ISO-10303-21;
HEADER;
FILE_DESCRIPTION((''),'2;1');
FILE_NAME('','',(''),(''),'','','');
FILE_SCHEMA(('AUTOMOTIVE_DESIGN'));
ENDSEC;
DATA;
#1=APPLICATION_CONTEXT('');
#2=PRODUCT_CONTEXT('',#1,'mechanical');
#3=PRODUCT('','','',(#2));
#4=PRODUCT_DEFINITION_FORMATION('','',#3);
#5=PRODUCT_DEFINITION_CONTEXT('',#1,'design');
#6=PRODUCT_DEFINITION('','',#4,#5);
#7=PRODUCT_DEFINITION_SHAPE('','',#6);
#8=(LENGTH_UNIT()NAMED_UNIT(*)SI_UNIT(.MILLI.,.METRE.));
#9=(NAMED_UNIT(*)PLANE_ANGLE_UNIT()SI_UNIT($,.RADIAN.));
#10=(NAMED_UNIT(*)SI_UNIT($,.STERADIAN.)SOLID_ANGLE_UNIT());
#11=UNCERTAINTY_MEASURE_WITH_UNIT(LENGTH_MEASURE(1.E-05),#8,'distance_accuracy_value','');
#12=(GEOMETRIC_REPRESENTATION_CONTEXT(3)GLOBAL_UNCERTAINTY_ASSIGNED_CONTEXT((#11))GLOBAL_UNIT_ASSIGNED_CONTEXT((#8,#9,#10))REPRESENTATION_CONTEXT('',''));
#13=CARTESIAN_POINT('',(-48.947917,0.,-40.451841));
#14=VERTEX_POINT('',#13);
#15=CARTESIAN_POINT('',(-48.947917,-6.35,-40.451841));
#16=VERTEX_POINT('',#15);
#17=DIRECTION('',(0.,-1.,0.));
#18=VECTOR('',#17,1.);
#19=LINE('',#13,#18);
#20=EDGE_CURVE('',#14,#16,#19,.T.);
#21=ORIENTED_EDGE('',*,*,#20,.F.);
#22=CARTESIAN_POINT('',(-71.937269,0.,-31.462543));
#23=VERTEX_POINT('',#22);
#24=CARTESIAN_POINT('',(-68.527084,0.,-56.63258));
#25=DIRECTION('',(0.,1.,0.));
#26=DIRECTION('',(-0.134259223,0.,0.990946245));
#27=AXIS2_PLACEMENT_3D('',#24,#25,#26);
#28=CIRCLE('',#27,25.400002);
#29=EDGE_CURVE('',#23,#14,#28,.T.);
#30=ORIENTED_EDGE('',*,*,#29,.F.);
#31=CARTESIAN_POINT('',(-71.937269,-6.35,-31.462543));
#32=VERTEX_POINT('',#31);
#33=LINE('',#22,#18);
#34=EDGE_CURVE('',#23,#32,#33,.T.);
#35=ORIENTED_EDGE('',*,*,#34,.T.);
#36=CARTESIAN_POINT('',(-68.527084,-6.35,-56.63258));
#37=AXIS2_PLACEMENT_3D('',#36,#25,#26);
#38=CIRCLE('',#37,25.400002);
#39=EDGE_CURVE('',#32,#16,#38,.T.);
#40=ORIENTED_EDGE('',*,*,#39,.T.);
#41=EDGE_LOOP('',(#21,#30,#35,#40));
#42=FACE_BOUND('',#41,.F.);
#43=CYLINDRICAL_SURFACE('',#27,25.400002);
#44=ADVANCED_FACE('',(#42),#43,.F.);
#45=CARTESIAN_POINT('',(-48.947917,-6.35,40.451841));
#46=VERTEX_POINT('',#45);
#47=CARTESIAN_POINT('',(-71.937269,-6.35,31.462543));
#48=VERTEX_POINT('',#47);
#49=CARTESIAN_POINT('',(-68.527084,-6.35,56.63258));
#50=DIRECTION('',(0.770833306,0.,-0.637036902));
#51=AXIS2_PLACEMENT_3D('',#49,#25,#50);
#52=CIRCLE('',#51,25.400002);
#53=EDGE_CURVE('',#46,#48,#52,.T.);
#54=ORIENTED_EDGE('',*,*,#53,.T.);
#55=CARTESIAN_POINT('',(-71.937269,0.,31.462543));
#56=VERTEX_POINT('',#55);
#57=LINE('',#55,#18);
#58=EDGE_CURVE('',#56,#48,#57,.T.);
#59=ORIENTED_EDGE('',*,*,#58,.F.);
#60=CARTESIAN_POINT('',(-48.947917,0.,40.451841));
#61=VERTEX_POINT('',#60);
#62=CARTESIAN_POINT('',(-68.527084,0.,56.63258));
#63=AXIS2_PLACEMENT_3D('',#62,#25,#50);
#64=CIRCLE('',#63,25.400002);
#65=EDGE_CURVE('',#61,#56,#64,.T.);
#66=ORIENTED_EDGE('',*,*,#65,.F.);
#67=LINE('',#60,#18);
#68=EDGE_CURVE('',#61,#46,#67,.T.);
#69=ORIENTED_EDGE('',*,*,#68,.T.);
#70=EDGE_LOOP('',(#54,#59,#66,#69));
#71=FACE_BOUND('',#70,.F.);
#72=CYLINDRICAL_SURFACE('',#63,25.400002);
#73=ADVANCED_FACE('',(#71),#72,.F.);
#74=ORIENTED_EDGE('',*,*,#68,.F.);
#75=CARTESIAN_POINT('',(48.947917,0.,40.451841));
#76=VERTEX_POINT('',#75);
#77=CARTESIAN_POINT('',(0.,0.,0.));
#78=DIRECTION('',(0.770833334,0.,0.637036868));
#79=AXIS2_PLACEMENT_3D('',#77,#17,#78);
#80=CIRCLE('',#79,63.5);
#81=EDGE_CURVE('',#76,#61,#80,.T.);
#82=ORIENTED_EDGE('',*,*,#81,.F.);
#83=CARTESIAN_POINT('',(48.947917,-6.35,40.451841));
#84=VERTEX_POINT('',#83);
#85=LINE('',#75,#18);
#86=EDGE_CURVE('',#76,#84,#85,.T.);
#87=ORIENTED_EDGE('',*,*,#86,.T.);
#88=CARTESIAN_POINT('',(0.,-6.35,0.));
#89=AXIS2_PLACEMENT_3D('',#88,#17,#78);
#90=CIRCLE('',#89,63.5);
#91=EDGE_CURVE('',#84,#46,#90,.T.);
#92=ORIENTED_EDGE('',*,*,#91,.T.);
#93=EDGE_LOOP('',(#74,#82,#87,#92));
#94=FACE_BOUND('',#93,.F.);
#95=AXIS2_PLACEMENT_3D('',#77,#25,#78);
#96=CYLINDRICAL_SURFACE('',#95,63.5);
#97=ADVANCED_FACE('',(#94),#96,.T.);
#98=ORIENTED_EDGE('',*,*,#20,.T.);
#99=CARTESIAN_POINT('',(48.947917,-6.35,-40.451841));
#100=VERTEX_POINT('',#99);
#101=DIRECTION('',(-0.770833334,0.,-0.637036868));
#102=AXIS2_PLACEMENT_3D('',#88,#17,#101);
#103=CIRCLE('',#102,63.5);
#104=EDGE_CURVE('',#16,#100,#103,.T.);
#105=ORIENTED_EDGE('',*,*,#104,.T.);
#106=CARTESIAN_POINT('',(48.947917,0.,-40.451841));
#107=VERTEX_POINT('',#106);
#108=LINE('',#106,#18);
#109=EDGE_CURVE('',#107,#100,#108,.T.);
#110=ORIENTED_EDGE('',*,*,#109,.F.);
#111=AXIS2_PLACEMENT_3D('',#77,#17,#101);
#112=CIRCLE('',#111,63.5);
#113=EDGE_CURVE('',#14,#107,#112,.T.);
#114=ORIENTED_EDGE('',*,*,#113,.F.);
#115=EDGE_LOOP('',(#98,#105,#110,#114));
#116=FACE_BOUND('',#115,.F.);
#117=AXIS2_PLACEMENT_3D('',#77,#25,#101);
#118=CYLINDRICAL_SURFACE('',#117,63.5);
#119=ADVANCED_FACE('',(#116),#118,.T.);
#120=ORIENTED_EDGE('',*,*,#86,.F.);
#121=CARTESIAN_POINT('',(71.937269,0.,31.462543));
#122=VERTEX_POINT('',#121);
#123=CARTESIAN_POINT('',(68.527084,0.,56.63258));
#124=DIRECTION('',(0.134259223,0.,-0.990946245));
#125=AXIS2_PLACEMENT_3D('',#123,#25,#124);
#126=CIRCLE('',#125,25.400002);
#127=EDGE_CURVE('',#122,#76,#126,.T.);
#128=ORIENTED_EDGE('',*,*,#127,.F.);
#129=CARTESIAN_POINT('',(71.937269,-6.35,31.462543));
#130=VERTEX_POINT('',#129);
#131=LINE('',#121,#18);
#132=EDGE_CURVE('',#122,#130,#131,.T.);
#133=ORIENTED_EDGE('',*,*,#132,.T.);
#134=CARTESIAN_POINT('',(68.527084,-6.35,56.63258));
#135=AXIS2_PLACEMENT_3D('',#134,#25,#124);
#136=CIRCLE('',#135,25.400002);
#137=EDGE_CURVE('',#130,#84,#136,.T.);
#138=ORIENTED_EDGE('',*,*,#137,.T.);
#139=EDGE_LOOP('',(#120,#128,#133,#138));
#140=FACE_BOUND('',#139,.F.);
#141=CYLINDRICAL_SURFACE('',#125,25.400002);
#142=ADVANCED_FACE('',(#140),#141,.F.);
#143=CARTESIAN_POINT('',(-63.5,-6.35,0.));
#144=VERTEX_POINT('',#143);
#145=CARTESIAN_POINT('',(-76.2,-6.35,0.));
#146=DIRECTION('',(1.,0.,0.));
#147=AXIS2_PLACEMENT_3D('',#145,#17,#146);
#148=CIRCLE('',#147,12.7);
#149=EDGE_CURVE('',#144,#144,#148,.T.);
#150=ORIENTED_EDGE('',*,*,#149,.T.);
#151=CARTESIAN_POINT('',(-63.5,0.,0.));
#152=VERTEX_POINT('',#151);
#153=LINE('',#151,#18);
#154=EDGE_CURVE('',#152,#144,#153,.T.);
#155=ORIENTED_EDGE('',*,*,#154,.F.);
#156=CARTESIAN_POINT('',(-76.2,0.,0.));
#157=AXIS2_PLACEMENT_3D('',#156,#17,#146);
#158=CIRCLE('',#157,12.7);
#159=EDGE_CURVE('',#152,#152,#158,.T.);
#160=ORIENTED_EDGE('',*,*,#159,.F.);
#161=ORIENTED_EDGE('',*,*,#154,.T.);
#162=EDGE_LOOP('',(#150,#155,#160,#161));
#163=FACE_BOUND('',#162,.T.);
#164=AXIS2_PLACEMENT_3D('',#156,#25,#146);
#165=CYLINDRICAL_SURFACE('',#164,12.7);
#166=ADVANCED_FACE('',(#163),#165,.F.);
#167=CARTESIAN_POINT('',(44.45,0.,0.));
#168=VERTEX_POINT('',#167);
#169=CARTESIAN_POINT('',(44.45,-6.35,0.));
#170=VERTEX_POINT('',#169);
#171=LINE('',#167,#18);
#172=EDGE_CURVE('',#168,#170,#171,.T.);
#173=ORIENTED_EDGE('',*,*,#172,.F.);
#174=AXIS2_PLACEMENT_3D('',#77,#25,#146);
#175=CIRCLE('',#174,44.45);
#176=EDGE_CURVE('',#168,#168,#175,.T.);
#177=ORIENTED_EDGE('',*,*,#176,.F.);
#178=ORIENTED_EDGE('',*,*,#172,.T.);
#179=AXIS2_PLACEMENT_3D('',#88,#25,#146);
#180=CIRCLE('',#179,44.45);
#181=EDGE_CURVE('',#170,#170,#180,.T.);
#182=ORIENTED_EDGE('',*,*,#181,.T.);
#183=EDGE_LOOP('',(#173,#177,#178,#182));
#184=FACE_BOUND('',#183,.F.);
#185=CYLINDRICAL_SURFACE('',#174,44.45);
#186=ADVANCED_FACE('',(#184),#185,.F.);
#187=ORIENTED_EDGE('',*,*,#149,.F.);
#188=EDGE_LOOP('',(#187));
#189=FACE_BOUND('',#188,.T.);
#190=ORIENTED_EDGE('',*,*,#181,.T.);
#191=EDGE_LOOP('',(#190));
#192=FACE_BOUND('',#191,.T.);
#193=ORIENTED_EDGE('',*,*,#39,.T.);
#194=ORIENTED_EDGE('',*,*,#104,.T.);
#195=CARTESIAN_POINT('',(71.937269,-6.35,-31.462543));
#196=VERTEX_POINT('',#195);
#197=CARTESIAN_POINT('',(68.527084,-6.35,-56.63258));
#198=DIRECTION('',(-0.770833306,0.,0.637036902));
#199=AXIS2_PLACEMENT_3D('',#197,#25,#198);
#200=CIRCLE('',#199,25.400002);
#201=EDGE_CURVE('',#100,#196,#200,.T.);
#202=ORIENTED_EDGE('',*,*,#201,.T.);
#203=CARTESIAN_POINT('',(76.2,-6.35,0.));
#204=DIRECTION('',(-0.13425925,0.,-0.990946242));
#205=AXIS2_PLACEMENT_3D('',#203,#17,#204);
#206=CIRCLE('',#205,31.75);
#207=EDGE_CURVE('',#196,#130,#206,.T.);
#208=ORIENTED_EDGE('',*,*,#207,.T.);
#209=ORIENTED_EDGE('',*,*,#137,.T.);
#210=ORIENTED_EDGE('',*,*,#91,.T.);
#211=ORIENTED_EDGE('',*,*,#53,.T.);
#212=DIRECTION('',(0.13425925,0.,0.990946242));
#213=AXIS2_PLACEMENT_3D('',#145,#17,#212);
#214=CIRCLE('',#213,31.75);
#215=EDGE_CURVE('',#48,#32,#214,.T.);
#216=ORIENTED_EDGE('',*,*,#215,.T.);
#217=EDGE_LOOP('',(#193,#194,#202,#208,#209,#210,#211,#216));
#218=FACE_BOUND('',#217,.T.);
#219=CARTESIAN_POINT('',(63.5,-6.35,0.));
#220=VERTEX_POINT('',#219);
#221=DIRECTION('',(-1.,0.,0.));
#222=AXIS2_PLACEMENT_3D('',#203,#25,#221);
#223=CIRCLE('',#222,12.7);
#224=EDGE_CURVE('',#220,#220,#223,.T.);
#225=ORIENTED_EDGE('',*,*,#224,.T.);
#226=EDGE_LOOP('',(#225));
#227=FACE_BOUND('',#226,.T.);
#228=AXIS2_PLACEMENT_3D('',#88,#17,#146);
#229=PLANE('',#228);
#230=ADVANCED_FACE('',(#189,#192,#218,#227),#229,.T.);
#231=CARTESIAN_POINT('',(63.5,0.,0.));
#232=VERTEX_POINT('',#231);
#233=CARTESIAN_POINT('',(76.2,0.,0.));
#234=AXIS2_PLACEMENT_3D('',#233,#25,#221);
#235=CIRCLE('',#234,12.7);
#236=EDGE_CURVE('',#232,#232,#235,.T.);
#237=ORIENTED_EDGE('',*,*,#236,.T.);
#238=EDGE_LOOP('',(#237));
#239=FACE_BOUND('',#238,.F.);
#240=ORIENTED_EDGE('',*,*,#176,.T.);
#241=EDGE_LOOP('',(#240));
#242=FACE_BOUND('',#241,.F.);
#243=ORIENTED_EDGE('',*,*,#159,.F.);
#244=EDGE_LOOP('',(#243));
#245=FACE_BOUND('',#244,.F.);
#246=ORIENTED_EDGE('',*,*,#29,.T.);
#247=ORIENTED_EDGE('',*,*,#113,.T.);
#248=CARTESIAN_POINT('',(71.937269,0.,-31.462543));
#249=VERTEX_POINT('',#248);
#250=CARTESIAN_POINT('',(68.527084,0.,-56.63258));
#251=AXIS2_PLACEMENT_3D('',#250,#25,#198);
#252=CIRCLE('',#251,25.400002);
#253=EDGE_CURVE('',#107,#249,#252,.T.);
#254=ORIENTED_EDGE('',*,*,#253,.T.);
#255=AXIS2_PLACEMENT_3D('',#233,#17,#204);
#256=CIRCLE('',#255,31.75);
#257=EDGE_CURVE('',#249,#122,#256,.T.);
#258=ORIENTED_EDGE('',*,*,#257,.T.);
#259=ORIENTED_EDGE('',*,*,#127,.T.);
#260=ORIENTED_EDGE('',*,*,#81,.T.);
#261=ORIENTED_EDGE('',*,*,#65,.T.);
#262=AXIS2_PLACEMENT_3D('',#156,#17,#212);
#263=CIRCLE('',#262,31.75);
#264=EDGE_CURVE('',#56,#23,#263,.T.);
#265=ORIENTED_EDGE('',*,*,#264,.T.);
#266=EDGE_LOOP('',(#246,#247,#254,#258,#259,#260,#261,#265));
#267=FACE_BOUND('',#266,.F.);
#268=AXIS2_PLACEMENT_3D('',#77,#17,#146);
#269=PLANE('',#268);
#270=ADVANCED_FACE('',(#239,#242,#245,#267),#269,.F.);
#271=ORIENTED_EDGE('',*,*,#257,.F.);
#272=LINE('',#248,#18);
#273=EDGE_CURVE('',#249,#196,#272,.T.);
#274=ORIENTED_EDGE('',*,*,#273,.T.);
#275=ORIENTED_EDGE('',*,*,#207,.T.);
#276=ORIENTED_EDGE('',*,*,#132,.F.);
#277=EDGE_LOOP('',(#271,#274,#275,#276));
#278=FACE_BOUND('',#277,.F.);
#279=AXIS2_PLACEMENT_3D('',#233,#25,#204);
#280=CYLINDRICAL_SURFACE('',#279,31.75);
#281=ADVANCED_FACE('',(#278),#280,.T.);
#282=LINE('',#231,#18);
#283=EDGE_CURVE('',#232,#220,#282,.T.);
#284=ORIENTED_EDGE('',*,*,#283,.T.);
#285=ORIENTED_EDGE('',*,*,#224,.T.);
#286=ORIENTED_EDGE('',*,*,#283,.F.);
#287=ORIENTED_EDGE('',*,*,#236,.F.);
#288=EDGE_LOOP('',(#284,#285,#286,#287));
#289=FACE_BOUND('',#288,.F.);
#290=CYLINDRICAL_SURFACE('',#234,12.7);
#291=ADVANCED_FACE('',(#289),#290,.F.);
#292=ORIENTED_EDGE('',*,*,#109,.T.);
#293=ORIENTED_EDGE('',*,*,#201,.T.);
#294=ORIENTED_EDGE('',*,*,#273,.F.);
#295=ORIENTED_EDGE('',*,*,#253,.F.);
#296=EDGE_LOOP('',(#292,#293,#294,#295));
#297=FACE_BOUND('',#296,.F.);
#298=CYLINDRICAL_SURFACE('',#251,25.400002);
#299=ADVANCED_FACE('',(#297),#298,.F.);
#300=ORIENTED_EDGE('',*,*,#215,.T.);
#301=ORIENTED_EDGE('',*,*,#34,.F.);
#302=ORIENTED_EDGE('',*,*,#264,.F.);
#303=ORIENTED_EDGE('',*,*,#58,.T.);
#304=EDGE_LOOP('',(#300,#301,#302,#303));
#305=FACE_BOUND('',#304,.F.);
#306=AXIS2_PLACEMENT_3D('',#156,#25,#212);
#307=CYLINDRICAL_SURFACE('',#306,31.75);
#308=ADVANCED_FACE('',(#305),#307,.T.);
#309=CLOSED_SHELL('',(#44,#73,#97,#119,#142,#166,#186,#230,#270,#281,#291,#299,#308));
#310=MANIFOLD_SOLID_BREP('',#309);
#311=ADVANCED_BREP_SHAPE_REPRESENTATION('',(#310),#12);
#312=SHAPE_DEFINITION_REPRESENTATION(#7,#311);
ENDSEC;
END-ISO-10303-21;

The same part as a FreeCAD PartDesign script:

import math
import FreeCAD as App
import Part
import Sketcher
from FreeCAD import Vector
Q = App.Units.Quantity

doc = App.newDocument("Part")
params = doc.addObject("Spreadsheet::Sheet", "Params")
for row, (alias, value) in enumerate([
    ("sketch1_diameter", "1 in"),
    ("sketch1_radius", "1.0000001 in"),
    ("sketch1_diameter2", "3.5 in"),
    ("sketch1_radius2", "2.5 in"),
    ("sketch1_radius3", "1.25 in"),
    ("pad1_length", "0.25 in"),
], start=1):
    params.set(f"A{row}", alias)
    params.set(f"B{row}", "=" + value)
    params.setAlias(f"B{row}", alias)

body = doc.addObject("PartDesign::Body", "Body")

sketch1 = body.newObject("Sketcher::SketchObject", "Sketch")
sketch1.AttachmentSupport = (doc.getObject("XZ_Plane"), [""])
sketch1.MapMode = "FlatFace"
sketch1.addGeometry(Part.ArcOfCircle(Part.Circle(Vector(-69, -57, 0), Vector(0, 0, 1), 25), math.radians(40), math.radians(98)), False)
sketch1.addGeometry(Part.ArcOfCircle(Part.Circle(Vector(0, 0, 0), Vector(0, 0, 1), 64), math.radians(-140), math.radians(-40)), False)
sketch1.addGeometry(Part.ArcOfCircle(Part.Circle(Vector(69, -57, 0), Vector(0, 0, 1), 25), math.radians(82), math.radians(140)), False)
sketch1.addGeometry(Part.ArcOfCircle(Part.Circle(Vector(76, 0, 0), Vector(0, 0, 1), 32), math.radians(-98), math.radians(98)), False)
sketch1.addGeometry(Part.ArcOfCircle(Part.Circle(Vector(69, 57, 0), Vector(0, 0, 1), 25), math.radians(-140), math.radians(-82)), False)
sketch1.addGeometry(Part.ArcOfCircle(Part.Circle(Vector(0, 0, 0), Vector(0, 0, 1), 64), math.radians(40), math.radians(140)), False)
sketch1.addGeometry(Part.ArcOfCircle(Part.Circle(Vector(-69, 57, 0), Vector(0, 0, 1), 25), math.radians(-98), math.radians(-40)), False)
sketch1.addGeometry(Part.ArcOfCircle(Part.Circle(Vector(-76, 0, 0), Vector(0, 0, 1), 32), math.radians(82), math.radians(278)), False)
sketch1.addGeometry(Part.Circle(Vector(-76, 0, 0), Vector(0, 0, 1), 13), False)
sketch1.addGeometry(Part.Circle(Vector(76, 0, 0), Vector(0, 0, 1), 13), False)
sketch1.addGeometry(Part.Circle(Vector(0, 0, 0), Vector(0, 0, 1), 44), False)
sketch1.addConstraint(Sketcher.Constraint("Tangent", 0, 1, 1, 1))
sketch1.addConstraint(Sketcher.Constraint("Tangent", 1, 2, 2, 2))
sketch1.addConstraint(Sketcher.Constraint("Tangent", 2, 1, 3, 1))
sketch1.addConstraint(Sketcher.Constraint("Tangent", 3, 2, 4, 2))
sketch1.addConstraint(Sketcher.Constraint("Tangent", 4, 1, 5, 1))
sketch1.addConstraint(Sketcher.Constraint("Tangent", 5, 2, 6, 2))
sketch1.addConstraint(Sketcher.Constraint("Tangent", 6, 1, 7, 1))
sketch1.addConstraint(Sketcher.Constraint("Tangent", 7, 2, 0, 2))
sketch1.addConstraint(Sketcher.Constraint("Coincident", 1, 3, -1, 1))
sketch1.addConstraint(Sketcher.Constraint("Coincident", 5, 3, -1, 1))
sketch1.addConstraint(Sketcher.Constraint("Coincident", 10, 3, -1, 1))
sketch1.addConstraint(Sketcher.Constraint("Coincident", 8, 3, 7, 3))
sketch1.addConstraint(Sketcher.Constraint("Coincident", 9, 3, 3, 3))
sketch1.addConstraint(Sketcher.Constraint("Equal", 0, 2))
sketch1.addConstraint(Sketcher.Constraint("Equal", 2, 4))
sketch1.addConstraint(Sketcher.Constraint("Equal", 1, 5))
sketch1.addConstraint(Sketcher.Constraint("Equal", 4, 6))
sketch1.addConstraint(Sketcher.Constraint("Equal", 3, 7))
sketch1.addConstraint(Sketcher.Constraint("Equal", 8, 9))
sketch1.addConstraint(Sketcher.Constraint("Symmetric", 3, 3, 7, 3, -1, 1))
sketch1.addConstraint(Sketcher.Constraint("PointOnObject", 3, 3, -1))
sketch1.addConstraint(Sketcher.Constraint("Diameter", 8, Q("1 in")))
sketch1.addConstraint(Sketcher.Constraint("Radius", 0, Q("1.0000001 in")))
sketch1.addConstraint(Sketcher.Constraint("Diameter", 10, Q("3.5 in")))
sketch1.addConstraint(Sketcher.Constraint("Radius", 1, Q("2.5 in")))
sketch1.addConstraint(Sketcher.Constraint("Radius", 3, Q("1.25 in")))
sketch1.addConstraint(Sketcher.Constraint("DistanceX", -1, 1, 3, 3, Q("3 in")))
sketch1.setExpression("Constraints[21]", "Params.sketch1_diameter")
sketch1.setExpression("Constraints[22]", "Params.sketch1_radius")
sketch1.setExpression("Constraints[23]", "Params.sketch1_diameter2")
sketch1.setExpression("Constraints[24]", "Params.sketch1_radius2")
sketch1.setExpression("Constraints[25]", "Params.sketch1_radius3")
pad1 = body.newObject("PartDesign::Pad", "Pad")
pad1.Profile = sketch1
pad1.setExpression("Length", "Params.pad1_length")

doc.recompute()
